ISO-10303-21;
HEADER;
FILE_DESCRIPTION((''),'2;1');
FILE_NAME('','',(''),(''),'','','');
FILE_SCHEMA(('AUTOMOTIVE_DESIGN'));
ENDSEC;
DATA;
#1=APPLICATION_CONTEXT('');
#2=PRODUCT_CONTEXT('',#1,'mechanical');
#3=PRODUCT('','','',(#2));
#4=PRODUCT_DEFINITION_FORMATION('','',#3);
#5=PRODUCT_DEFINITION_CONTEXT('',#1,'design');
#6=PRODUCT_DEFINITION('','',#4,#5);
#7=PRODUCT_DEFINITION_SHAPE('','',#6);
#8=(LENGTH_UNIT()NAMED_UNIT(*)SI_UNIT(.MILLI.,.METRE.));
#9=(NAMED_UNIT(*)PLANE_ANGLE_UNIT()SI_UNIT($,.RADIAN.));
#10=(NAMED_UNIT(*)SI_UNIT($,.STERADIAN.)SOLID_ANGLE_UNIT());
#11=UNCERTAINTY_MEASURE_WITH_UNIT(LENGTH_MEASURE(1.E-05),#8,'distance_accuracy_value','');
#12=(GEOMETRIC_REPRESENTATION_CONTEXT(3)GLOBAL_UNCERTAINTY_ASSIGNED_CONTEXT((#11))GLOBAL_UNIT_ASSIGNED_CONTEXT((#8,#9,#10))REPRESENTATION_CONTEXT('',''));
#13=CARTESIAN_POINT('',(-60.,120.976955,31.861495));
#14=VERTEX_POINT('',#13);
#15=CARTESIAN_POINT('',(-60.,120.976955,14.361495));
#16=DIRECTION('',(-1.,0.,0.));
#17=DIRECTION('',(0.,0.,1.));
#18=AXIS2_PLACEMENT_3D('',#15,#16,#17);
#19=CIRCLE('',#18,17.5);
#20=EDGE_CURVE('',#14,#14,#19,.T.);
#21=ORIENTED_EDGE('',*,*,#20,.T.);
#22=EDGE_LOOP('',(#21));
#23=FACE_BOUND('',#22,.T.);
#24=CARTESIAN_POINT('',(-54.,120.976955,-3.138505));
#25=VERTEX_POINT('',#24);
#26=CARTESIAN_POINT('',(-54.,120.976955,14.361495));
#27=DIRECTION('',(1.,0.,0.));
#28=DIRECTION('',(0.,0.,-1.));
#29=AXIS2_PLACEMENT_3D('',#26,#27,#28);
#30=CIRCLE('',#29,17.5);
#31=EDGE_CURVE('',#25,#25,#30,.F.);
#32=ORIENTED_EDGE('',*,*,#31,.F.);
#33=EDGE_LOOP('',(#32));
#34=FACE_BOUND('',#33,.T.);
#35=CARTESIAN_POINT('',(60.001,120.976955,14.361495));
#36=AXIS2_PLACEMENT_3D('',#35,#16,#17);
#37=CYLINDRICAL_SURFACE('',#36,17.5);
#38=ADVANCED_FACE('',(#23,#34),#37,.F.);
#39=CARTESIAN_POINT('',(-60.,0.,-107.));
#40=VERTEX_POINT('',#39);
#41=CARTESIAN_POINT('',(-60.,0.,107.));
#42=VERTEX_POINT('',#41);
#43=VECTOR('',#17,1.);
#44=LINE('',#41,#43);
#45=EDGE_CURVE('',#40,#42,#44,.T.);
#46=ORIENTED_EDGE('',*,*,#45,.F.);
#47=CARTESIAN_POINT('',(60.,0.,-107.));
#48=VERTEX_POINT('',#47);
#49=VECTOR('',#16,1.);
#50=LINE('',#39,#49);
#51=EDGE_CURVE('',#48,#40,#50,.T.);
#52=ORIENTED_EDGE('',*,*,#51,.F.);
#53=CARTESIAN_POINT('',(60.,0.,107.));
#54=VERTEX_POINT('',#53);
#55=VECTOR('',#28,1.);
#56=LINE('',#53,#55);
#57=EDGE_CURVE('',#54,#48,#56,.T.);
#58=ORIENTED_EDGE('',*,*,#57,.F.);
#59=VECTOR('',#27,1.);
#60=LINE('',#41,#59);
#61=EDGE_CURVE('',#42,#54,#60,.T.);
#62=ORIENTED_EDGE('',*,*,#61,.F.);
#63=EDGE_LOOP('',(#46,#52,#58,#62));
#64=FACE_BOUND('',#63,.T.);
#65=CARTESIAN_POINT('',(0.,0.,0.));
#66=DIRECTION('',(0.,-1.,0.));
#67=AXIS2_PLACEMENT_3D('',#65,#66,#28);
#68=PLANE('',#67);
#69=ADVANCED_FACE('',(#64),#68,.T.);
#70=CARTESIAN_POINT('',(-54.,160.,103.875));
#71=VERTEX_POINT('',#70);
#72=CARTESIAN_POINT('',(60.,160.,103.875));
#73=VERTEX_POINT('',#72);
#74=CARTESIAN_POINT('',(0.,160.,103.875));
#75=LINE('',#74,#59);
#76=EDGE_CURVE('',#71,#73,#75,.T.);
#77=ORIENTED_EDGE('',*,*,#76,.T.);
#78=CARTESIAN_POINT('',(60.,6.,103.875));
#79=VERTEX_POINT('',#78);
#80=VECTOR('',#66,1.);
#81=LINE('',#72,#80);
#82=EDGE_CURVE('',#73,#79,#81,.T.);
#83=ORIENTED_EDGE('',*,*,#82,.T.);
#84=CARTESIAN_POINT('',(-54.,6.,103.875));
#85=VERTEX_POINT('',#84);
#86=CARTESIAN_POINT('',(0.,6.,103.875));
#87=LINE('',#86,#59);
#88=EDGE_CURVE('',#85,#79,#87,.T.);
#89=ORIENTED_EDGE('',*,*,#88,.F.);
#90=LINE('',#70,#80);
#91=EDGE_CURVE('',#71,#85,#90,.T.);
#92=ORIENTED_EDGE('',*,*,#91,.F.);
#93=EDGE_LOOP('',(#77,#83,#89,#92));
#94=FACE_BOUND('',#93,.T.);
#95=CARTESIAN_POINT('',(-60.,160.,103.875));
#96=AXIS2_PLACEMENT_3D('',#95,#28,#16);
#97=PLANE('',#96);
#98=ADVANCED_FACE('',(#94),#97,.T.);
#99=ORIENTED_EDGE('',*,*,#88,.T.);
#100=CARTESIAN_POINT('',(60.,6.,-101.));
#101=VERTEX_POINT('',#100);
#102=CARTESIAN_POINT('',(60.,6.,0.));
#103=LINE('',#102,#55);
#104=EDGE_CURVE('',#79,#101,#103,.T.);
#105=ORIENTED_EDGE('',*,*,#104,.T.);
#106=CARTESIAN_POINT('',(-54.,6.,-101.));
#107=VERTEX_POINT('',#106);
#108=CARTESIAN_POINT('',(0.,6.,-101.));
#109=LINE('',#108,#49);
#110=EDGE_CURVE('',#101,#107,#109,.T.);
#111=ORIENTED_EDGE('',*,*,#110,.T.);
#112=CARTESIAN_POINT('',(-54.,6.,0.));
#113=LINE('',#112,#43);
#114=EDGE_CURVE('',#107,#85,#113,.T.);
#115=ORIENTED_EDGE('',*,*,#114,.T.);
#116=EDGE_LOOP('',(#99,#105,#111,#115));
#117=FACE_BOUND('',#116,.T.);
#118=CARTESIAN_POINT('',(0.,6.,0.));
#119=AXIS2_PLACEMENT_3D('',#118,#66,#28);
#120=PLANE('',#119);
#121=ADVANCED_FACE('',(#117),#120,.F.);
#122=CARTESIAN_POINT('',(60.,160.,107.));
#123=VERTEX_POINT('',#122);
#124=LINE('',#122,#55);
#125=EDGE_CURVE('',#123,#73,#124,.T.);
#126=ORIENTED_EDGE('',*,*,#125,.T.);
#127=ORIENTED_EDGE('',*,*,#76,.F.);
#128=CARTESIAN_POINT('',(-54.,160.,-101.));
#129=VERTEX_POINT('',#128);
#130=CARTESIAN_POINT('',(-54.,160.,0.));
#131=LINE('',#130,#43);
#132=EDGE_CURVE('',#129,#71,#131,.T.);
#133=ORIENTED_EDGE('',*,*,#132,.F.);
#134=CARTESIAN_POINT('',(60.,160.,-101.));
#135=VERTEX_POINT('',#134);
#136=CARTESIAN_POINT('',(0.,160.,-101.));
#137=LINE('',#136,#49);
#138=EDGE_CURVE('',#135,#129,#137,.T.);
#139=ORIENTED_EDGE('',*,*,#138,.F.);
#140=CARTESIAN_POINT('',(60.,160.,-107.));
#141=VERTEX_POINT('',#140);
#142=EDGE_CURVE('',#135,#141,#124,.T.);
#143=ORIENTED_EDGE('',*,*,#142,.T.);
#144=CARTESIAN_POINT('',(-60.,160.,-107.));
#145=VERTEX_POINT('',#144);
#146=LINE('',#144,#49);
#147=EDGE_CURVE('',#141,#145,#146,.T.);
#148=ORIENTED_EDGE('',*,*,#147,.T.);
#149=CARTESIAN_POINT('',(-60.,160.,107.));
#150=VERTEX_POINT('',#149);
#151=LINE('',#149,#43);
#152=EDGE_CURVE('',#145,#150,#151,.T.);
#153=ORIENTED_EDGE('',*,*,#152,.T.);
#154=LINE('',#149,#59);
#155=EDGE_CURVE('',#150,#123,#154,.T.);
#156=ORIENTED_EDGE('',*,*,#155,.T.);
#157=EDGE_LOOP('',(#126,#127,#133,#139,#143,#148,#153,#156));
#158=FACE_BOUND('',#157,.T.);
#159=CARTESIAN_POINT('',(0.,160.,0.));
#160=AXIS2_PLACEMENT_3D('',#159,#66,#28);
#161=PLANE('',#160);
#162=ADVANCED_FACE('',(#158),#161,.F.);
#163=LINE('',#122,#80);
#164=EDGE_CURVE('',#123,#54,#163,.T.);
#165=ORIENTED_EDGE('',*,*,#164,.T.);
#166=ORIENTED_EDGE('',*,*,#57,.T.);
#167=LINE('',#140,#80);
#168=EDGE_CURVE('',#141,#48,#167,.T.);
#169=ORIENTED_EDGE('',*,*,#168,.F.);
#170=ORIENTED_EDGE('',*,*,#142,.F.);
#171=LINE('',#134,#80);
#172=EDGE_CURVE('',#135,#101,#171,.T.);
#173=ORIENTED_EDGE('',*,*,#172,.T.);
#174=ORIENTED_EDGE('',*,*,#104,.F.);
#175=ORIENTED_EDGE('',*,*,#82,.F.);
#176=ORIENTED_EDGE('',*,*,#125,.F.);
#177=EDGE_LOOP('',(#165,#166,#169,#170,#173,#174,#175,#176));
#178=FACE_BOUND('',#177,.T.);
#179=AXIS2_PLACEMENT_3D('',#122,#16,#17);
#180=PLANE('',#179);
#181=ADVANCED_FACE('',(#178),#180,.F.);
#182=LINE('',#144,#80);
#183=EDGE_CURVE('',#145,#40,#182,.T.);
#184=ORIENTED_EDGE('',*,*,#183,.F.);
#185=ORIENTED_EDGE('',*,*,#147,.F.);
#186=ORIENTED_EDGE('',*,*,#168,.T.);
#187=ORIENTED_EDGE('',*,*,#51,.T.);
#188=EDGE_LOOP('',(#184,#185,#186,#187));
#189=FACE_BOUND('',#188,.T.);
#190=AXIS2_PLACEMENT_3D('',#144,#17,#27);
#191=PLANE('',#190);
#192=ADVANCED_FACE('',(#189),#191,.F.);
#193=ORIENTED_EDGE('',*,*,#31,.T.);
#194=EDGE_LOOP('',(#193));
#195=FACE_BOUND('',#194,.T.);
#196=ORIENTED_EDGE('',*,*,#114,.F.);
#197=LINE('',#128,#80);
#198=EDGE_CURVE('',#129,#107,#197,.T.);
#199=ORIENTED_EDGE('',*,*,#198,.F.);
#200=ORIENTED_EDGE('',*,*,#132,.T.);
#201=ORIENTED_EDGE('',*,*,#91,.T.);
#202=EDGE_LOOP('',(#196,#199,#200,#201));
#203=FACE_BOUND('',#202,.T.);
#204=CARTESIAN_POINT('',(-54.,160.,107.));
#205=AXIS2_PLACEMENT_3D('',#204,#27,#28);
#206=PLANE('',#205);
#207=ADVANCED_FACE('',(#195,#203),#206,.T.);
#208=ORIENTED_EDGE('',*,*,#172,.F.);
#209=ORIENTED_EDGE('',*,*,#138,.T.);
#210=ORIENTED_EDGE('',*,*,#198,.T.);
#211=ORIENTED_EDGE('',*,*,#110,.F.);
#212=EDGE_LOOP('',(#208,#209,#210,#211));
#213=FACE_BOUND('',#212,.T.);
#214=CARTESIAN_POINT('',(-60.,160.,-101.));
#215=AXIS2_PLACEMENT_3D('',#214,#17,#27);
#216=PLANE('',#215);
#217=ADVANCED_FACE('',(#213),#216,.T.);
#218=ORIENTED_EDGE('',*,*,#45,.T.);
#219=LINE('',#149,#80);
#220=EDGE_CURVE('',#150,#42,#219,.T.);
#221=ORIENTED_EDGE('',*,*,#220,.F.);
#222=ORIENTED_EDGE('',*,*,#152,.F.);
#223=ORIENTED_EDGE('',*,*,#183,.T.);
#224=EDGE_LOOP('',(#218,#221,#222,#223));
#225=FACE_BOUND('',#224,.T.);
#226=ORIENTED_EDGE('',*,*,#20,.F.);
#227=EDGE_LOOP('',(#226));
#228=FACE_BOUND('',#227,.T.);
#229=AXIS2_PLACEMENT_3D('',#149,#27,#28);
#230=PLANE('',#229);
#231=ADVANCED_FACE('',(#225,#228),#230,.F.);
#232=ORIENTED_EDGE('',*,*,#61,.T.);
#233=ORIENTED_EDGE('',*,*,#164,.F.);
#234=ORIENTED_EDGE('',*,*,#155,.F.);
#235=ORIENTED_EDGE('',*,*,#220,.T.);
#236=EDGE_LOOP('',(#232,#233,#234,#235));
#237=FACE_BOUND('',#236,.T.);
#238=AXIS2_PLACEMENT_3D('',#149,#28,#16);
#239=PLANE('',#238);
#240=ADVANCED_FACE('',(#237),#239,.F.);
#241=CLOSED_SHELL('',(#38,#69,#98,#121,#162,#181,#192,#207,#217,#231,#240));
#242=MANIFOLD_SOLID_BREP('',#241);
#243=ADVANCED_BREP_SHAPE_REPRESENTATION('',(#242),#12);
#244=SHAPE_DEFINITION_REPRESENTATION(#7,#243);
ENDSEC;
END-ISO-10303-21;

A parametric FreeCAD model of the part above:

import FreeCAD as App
import Part
import Sketcher

V = App.Vector
Q = App.Units.Quantity


def faces_at(feature, points):
    """Names of the faces that lie closest to the given points."""
    faces = feature.Shape.Faces
    near = lambda p: min(range(len(faces)), key=lambda i: faces[i].distToShape(Part.Vertex(*p))[0])
    return sorted({f"Face{near(p) + 1}" for p in points})


def add_polygon(sketch, points):
    """Adds a closed chain of lines whose ends are joined by coincident constraints."""
    first, n = sketch.GeometryCount, len(points)
    for a, b in zip(points, points[1:] + points[:1]):
        sketch.addGeometry(Part.LineSegment(App.Vector(*a, 0), App.Vector(*b, 0)), False)
    for i in range(n):
        sketch.addConstraint(Sketcher.Constraint("Coincident", first + i, 2, first + (i + 1) % n, 1))

doc = App.newDocument("Part")
body = doc.addObject("PartDesign::Body", "Body")

sketch1 = body.newObject("Sketcher::SketchObject", "Sketch")
sketch1.AttachmentSupport = (doc.getObject("XZ_Plane"), [""])
sketch1.MapMode = "FlatFace"
add_polygon(sketch1, [(-60, -107), (-60, 107), (60, 107), (60, -107)])
sketch1.addConstraint([
    Sketcher.Constraint("Vertical", 0),
    Sketcher.Constraint("Horizontal", 1),
    Sketcher.Constraint("Vertical", 2),
    Sketcher.Constraint("Horizontal", 3),
    Sketcher.Constraint("Symmetric", 0, 2, 2, 2, -1, 1),
    Sketcher.Constraint("DistanceX", 1, 1, 1, 2, Q("120 mm")),
    Sketcher.Constraint("DistanceY", 0, 1, 0, 2, Q("214 mm")),
])
pad1 = body.newObject("PartDesign::Pad", "Pad")
pad1.Profile = sketch1
pad1.Length = 160
pad1.Reversed = True
doc.recompute()

thickness = body.newObject("PartDesign::Thickness", "Thickness")
thickness.Base = (pad1, faces_at(pad1, [(0, 160, 0), (60, 80, 0)]))
thickness.Value = 6
thickness.Reversed = True
thickness.Join = "Intersection"

sketch2 = body.newObject("Sketcher::SketchObject", "Sketch001")
sketch2.AttachmentSupport = (doc.getObject("XY_Plane"), [""])
sketch2.MapMode = "FlatFace"
sketch2.AttachmentOffset = App.Placement(V(0, 0, 101), App.Rotation())
add_polygon(sketch2, [(-54, 160), (-54, 6), (60, 6), (60, 160)])
sketch2.addConstraint([
    Sketcher.Constraint("Vertical", 0),
    Sketcher.Constraint("Horizontal", 1),
    Sketcher.Constraint("Vertical", 2),
    Sketcher.Constraint("Horizontal", 3),
    Sketcher.Constraint("DistanceX", 1, 1, 1, 2, Q("114 mm")),
    Sketcher.Constraint("DistanceY", 0, 2, 0, 1, Q("154 mm")),
    Sketcher.Constraint("DistanceX", 0, 2, -1, 1, Q("54 mm")),
    Sketcher.Constraint("DistanceY", -1, 1, 0, 2, Q("6 mm")),
])
pocket1 = body.newObject("PartDesign::Pocket", "Pocket")
pocket1.Profile = sketch2
pocket1.Length = 2.875
pocket1.Reversed = True

sketch3 = body.newObject("Sketcher::SketchObject", "Sketch002")
sketch3.AttachmentSupport = (doc.getObject("YZ_Plane"), [""])
sketch3.MapMode = "FlatFace"
sketch3.AttachmentOffset = App.Placement(V(0, 0, -60), App.Rotation())
sketch3.addGeometry(Part.Circle(V(121, 14, 0), V(0, 0, 1), 18), False)
sketch3.addConstraint([
    Sketcher.Constraint("Diameter", 0, Q("35 mm")),
    Sketcher.Constraint("DistanceX", -1, 1, 0, 3, Q("120.976955 mm")),
    Sketcher.Constraint("DistanceY", -1, 1, 0, 3, Q("14.361495 mm")),
])
pocket2 = body.newObject("PartDesign::Pocket", "Pocket001")
pocket2.Profile = sketch3
pocket2.Type = "UpToFirst"
pocket2.Reversed = True

doc.recompute()
